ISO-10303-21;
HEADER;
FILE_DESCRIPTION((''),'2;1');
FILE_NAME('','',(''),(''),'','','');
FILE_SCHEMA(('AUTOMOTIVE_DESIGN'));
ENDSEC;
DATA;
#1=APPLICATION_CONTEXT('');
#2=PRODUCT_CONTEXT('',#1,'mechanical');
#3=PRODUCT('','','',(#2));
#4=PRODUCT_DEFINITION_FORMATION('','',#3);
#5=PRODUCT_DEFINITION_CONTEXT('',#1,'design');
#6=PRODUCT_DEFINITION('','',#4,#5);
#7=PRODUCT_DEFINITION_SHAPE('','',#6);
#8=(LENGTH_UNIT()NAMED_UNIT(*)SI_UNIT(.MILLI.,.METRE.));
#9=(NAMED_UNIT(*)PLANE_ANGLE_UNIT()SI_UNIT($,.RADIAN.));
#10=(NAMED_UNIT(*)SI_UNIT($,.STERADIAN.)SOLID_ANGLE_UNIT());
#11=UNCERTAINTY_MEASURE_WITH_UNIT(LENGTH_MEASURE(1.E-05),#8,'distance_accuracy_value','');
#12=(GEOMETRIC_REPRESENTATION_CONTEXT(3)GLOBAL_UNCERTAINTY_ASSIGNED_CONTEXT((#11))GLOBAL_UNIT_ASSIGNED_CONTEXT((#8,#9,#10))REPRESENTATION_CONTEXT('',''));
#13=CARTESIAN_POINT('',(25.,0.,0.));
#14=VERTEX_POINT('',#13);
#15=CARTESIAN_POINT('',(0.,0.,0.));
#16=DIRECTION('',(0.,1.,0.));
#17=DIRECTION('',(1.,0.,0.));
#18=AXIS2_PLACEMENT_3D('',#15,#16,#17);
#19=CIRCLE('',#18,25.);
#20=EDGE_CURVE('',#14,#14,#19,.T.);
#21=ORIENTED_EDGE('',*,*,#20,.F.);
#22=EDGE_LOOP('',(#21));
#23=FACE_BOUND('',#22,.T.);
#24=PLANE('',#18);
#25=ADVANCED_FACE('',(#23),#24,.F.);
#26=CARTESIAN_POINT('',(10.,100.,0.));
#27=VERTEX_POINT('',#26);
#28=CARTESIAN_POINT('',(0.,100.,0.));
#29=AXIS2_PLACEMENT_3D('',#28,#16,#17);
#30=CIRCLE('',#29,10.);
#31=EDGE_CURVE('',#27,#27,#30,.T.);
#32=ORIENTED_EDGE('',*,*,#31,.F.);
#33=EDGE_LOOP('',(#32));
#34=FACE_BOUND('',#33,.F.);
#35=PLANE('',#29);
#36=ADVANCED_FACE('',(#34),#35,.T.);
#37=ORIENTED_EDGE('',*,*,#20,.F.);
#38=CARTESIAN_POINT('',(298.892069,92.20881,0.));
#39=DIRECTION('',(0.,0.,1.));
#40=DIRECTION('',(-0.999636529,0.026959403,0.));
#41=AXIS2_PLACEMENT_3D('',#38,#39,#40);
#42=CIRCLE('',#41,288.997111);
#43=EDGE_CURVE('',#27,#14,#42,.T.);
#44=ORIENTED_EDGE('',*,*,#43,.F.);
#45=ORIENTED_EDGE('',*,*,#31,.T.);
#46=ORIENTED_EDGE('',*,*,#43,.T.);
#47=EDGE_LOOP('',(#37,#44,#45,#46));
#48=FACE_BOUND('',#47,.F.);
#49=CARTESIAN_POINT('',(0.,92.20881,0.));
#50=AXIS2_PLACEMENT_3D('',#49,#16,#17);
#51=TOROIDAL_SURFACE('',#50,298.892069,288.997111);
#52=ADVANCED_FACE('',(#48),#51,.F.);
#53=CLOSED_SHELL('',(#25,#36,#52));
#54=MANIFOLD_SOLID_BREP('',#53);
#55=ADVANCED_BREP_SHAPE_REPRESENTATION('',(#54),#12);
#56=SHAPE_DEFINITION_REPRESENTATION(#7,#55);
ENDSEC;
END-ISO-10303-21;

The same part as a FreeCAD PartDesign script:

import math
import FreeCAD as App
import Part
import Sketcher

doc = App.newDocument("Part")
body = doc.addObject("PartDesign::Body", "Body")

sketch1 = body.newObject("Sketcher::SketchObject", "Sketch")
sketch1.AttachmentSupport = (doc.getObject("XY_Plane"), [""])
sketch1.MapMode = "FlatFace"
sketch1.addGeometry(Part.LineSegment(App.Vector(0, 100, 0), App.Vector(0, 0, 0)), False)
sketch1.addGeometry(Part.LineSegment(App.Vector(0, 0, 0), App.Vector(25, 0, 0)), False)
sketch1.addGeometry(Part.ArcOfCircle(Part.Circle(App.Vector(299, 92, 0), App.Vector(0, 0, 1), 289), math.radians(178), math.radians(199)), False)
sketch1.addGeometry(Part.LineSegment(App.Vector(10, 100, 0), App.Vector(0, 100, 0)), False)
sketch1.addConstraint(Sketcher.Constraint("Coincident", 0, 2, 1, 1))
sketch1.addConstraint(Sketcher.Constraint("Coincident", 1, 2, 2, 2))
sketch1.addConstraint(Sketcher.Constraint("Coincident", 2, 1, 3, 1))
sketch1.addConstraint(Sketcher.Constraint("Coincident", 3, 2, 0, 1))
sketch1.addConstraint(Sketcher.Constraint("Vertical", 0))
sketch1.addConstraint(Sketcher.Constraint("Horizontal", 1))
sketch1.addConstraint(Sketcher.Constraint("Horizontal", 3))
sketch1.addConstraint(Sketcher.Constraint("Coincident", 0, 2, -1, 1))
sketch1.addConstraint(Sketcher.Constraint("DistanceX", 1, 1, 1, 2, 25.0))
sketch1.addConstraint(Sketcher.Constraint("DistanceX", 3, 2, 3, 1, 10.0))
sketch1.addConstraint(Sketcher.Constraint("DistanceY", 0, 2, 0, 1, 100.0))
sketch1.addConstraint(Sketcher.Constraint("Radius", 2, 288.997))
revolution = body.newObject("PartDesign::Revolution", "Revolution")
revolution.Profile = sketch1
revolution.ReferenceAxis = (sketch1, ["V_Axis"])
revolution.Angle = 360

doc.recompute()
